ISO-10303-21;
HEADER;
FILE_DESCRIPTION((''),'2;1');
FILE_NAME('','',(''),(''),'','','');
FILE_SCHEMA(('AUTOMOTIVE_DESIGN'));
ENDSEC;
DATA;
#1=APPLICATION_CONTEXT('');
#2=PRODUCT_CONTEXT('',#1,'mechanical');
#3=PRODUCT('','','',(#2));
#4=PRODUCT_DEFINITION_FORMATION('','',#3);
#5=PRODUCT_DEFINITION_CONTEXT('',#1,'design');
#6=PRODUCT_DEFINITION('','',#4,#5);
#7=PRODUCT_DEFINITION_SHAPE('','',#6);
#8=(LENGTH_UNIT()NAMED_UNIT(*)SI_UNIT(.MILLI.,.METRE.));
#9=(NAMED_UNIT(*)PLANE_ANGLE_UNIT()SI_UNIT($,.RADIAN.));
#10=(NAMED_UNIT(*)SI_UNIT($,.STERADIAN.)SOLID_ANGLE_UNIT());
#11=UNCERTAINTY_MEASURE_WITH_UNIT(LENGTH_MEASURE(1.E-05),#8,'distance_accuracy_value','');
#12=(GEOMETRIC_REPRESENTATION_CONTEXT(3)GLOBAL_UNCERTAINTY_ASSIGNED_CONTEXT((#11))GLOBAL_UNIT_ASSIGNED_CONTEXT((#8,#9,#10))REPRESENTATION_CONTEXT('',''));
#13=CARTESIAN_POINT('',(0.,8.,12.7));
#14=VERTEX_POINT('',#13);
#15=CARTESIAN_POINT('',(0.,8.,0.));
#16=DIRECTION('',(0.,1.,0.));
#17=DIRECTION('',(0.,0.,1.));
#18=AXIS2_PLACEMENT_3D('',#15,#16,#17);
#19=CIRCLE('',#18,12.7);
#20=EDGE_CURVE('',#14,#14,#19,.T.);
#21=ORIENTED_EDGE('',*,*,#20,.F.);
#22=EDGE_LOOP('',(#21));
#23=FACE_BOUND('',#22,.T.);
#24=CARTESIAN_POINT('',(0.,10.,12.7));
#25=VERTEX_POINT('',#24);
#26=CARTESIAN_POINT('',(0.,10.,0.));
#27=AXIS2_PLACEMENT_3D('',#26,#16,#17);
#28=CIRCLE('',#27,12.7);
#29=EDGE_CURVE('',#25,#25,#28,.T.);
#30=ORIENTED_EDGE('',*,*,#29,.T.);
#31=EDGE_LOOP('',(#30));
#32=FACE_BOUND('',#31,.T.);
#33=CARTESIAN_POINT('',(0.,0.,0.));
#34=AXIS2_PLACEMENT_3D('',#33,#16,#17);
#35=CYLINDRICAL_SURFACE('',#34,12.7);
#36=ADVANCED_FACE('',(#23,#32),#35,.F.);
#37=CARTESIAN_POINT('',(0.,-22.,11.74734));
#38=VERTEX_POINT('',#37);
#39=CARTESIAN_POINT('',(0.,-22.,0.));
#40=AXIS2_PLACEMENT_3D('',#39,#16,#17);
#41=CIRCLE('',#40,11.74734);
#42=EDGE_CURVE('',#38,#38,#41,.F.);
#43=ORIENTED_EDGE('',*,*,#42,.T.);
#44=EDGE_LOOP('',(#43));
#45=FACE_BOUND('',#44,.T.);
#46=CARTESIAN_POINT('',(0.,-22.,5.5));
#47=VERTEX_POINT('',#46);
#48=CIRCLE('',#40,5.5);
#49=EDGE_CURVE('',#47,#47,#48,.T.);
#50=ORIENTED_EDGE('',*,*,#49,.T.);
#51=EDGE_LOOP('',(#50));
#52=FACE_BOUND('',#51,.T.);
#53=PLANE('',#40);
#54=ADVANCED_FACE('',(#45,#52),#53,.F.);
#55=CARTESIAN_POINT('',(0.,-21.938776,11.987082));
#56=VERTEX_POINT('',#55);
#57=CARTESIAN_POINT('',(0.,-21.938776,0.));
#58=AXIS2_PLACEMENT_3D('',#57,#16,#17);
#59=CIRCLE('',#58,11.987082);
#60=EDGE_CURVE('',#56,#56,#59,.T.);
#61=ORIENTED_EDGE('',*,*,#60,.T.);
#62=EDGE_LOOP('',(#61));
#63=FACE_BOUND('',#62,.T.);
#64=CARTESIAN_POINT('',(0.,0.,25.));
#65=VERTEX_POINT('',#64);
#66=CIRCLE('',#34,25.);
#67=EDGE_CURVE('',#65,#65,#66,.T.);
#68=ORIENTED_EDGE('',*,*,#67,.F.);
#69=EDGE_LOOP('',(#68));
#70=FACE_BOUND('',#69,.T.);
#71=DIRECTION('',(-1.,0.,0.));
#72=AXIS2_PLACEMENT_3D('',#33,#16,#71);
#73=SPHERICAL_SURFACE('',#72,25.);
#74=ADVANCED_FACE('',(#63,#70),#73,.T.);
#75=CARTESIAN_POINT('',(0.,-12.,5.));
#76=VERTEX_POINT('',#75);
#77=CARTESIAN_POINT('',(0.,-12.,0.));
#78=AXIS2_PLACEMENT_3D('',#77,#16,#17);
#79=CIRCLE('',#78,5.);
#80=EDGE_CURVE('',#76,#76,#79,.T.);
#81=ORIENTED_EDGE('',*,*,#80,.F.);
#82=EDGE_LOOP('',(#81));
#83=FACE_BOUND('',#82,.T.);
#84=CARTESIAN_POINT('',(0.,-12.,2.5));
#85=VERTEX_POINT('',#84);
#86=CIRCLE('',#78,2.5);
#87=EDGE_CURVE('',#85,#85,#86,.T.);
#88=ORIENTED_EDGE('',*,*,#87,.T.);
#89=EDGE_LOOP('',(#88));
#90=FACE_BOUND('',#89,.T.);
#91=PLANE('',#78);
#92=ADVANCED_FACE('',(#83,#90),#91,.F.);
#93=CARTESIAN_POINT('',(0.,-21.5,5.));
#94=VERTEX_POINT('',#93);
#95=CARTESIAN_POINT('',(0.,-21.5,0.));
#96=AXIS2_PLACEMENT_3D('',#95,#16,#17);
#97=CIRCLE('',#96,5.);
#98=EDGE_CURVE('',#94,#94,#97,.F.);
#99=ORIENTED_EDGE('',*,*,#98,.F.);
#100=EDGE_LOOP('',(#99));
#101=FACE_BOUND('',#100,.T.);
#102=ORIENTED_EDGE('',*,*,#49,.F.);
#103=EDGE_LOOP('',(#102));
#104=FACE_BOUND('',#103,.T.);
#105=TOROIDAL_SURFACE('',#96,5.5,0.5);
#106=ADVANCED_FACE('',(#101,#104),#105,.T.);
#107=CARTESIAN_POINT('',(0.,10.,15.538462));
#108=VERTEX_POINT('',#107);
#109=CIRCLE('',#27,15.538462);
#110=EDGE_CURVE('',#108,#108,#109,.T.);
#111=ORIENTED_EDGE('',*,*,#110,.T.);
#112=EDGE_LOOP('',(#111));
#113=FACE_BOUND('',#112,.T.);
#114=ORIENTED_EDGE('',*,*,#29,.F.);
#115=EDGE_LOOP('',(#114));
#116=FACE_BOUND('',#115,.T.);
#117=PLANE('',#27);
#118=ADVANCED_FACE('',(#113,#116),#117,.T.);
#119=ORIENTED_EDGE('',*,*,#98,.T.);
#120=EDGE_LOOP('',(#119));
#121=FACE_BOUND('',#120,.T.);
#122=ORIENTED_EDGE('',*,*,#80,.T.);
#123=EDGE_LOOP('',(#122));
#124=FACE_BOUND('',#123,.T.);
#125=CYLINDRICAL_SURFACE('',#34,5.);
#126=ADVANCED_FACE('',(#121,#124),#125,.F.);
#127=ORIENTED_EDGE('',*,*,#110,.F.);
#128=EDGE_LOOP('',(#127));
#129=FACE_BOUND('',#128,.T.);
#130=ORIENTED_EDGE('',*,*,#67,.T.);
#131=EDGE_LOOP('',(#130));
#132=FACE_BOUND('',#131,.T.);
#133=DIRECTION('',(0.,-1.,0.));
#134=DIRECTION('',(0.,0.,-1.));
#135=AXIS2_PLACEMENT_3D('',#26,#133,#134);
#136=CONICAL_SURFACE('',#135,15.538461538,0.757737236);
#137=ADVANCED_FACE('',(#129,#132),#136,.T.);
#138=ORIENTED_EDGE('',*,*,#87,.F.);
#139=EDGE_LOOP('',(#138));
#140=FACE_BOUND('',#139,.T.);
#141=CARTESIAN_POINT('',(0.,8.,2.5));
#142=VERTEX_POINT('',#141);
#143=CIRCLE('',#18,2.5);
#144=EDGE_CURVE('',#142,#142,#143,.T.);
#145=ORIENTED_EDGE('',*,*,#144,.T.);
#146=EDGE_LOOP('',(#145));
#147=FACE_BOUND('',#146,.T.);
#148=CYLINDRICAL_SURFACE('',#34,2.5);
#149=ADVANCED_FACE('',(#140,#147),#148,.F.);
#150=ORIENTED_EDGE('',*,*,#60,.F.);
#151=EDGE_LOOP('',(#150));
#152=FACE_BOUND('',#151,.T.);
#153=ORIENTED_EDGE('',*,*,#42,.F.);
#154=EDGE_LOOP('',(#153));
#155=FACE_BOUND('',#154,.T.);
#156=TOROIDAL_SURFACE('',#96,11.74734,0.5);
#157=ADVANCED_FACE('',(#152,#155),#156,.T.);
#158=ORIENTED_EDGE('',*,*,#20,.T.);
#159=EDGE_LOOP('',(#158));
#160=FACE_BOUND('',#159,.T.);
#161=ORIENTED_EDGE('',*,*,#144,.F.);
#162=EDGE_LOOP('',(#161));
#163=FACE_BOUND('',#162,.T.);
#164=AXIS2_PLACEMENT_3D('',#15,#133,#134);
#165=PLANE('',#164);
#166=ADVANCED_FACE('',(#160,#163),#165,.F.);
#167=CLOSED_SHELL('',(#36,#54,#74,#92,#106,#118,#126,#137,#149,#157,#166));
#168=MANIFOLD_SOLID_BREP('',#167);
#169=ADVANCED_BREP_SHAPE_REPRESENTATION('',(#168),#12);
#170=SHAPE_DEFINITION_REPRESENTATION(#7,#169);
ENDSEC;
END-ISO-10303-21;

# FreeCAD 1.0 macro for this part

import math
import FreeCAD as App
import Part
import Sketcher
from FreeCAD import Vector
Q = App.Units.Quantity


def edges_at(feature, points):
    """Names of the edges that pass closest to the given points."""
    edges = feature.Shape.Edges
    near = lambda p: min(range(len(edges)), key=lambda i: edges[i].distToShape(Part.Vertex(*p))[0])
    return sorted({f"Edge{near(p) + 1}" for p in points})

doc = App.newDocument("Part")
params = doc.addObject("Spreadsheet::Sheet", "Params")
for row, (alias, value) in enumerate([
    ("sketch1_radius", "25 mm"),
    ("sketch1_height", "10 mm"),
    ("sketch1_height2", "20 mm"),
    ("sketch1_height3", "2 mm"),
    ("sketch1_width", "2.5 mm"),
    ("revolution_angle", "360 deg"),
    ("fillet_radius", "0.5 mm"),
], start=1):
    params.set(f"A{row}", alias)
    params.set(f"B{row}", "=" + value)
    params.setAlias(f"B{row}", alias)

body = doc.addObject("PartDesign::Body", "Body")

# Sketch on XY plane
sketch1 = doc.addObject("Sketcher::SketchObject", "Sketch")
body.addObject(sketch1)
sketch1.AttachmentSupport = (doc.XY_Plane, [""])
sketch1.MapMode = "FlatFace"
sketch1.addGeometry([
    Part.LineSegment(Vector(-15.538462, 10, 0), Vector(-25, 0, 0)),  # 0
    Part.ArcOfCircle(Part.Circle(Vector(0, 0, 0), Vector(0, 0, 1), 25), math.radians(180), math.radians(241.642363)),  # 1
    Part.LineSegment(Vector(-11.874342, -22, 0), Vector(-5, -22, 0)),  # 2
    Part.LineSegment(Vector(-5, -22, 0), Vector(-5, -12, 0)),  # 3
    Part.LineSegment(Vector(-5, -12, 0), Vector(-2.5, -12, 0)),  # 4
    Part.LineSegment(Vector(-2.5, -12, 0), Vector(-2.5, 8, 0)),  # 5
    Part.LineSegment(Vector(-2.5, 8, 0), Vector(-12.7, 8, 0)),  # 6
    Part.LineSegment(Vector(-12.7, 8, 0), Vector(-12.7, 10, 0)),  # 7
    Part.LineSegment(Vector(-12.7, 10, 0), Vector(-15.538462, 10, 0)),  # 8
], False)
sketch1.addConstraint([
    Sketcher.Constraint("Coincident", 0, 2, 1, 1),
    Sketcher.Constraint("Coincident", 1, 2, 2, 1),
    Sketcher.Constraint("Coincident", 2, 2, 3, 1),
    Sketcher.Constraint("Coincident", 3, 2, 4, 1),
    Sketcher.Constraint("Coincident", 4, 2, 5, 1),
    Sketcher.Constraint("Coincident", 5, 2, 6, 1),
    Sketcher.Constraint("Coincident", 6, 2, 7, 1),
    Sketcher.Constraint("Coincident", 7, 2, 8, 1),
    Sketcher.Constraint("Coincident", 8, 2, 0, 1),
    Sketcher.Constraint("Horizontal", 2),
    Sketcher.Constraint("Vertical", 3),
    Sketcher.Constraint("Horizontal", 4),
    Sketcher.Constraint("Vertical", 5),
    Sketcher.Constraint("Horizontal", 6),
    Sketcher.Constraint("Vertical", 7),
    Sketcher.Constraint("Horizontal", 8),
    Sketcher.Constraint("Coincident", 1, 3, -1, 1),
    Sketcher.Constraint("PointOnObject", 0, 2, -1),
    Sketcher.Constraint("Radius", 1, Q("25 mm")),
    Sketcher.Constraint("DistanceY", 3, 1, 3, 2, Q("10 mm")),
    Sketcher.Constraint("DistanceY", 5, 1, 5, 2, Q("20 mm")),
    Sketcher.Constraint("DistanceY", 7, 1, 7, 2, Q("2 mm")),
    Sketcher.Constraint("DistanceX", 4, 1, 4, 2, Q("2.5 mm")),
    Sketcher.Constraint("DistanceX", 6, 2, 6, 1, Q("10.2 mm")),
    Sketcher.Constraint("DistanceY", 1, 2, -1, 1, Q("22 mm")),
    Sketcher.Constraint("DistanceX", 2, 2, -1, 1, Q("5 mm")),
    Sketcher.Constraint("DistanceX", 8, 2, 8, 1, Q("2.838462 mm")),
])
sketch1.setExpression("Constraints[18]", "Params.sketch1_radius")
sketch1.setExpression("Constraints[19]", "Params.sketch1_height")
sketch1.setExpression("Constraints[20]", "Params.sketch1_height2")
sketch1.setExpression("Constraints[21]", "Params.sketch1_height3")
sketch1.setExpression("Constraints[22]", "Params.sketch1_width")
revolution = doc.addObject("PartDesign::Revolution", "Revolution")
body.addObject(revolution)
revolution.Profile = sketch1
revolution.ReferenceAxis = (sketch1, ["V_Axis"])
revolution.setExpression("Angle", "Params.revolution_angle")
doc.recompute()

fillet = doc.addObject("PartDesign::Fillet", "Fillet")
body.addObject(fillet)
fillet.Base = (revolution, edges_at(revolution, [(5, -22, 0), (11.874, -22, 0)]))
fillet.setExpression("Radius", "Params.fillet_radius")

doc.recompute()
